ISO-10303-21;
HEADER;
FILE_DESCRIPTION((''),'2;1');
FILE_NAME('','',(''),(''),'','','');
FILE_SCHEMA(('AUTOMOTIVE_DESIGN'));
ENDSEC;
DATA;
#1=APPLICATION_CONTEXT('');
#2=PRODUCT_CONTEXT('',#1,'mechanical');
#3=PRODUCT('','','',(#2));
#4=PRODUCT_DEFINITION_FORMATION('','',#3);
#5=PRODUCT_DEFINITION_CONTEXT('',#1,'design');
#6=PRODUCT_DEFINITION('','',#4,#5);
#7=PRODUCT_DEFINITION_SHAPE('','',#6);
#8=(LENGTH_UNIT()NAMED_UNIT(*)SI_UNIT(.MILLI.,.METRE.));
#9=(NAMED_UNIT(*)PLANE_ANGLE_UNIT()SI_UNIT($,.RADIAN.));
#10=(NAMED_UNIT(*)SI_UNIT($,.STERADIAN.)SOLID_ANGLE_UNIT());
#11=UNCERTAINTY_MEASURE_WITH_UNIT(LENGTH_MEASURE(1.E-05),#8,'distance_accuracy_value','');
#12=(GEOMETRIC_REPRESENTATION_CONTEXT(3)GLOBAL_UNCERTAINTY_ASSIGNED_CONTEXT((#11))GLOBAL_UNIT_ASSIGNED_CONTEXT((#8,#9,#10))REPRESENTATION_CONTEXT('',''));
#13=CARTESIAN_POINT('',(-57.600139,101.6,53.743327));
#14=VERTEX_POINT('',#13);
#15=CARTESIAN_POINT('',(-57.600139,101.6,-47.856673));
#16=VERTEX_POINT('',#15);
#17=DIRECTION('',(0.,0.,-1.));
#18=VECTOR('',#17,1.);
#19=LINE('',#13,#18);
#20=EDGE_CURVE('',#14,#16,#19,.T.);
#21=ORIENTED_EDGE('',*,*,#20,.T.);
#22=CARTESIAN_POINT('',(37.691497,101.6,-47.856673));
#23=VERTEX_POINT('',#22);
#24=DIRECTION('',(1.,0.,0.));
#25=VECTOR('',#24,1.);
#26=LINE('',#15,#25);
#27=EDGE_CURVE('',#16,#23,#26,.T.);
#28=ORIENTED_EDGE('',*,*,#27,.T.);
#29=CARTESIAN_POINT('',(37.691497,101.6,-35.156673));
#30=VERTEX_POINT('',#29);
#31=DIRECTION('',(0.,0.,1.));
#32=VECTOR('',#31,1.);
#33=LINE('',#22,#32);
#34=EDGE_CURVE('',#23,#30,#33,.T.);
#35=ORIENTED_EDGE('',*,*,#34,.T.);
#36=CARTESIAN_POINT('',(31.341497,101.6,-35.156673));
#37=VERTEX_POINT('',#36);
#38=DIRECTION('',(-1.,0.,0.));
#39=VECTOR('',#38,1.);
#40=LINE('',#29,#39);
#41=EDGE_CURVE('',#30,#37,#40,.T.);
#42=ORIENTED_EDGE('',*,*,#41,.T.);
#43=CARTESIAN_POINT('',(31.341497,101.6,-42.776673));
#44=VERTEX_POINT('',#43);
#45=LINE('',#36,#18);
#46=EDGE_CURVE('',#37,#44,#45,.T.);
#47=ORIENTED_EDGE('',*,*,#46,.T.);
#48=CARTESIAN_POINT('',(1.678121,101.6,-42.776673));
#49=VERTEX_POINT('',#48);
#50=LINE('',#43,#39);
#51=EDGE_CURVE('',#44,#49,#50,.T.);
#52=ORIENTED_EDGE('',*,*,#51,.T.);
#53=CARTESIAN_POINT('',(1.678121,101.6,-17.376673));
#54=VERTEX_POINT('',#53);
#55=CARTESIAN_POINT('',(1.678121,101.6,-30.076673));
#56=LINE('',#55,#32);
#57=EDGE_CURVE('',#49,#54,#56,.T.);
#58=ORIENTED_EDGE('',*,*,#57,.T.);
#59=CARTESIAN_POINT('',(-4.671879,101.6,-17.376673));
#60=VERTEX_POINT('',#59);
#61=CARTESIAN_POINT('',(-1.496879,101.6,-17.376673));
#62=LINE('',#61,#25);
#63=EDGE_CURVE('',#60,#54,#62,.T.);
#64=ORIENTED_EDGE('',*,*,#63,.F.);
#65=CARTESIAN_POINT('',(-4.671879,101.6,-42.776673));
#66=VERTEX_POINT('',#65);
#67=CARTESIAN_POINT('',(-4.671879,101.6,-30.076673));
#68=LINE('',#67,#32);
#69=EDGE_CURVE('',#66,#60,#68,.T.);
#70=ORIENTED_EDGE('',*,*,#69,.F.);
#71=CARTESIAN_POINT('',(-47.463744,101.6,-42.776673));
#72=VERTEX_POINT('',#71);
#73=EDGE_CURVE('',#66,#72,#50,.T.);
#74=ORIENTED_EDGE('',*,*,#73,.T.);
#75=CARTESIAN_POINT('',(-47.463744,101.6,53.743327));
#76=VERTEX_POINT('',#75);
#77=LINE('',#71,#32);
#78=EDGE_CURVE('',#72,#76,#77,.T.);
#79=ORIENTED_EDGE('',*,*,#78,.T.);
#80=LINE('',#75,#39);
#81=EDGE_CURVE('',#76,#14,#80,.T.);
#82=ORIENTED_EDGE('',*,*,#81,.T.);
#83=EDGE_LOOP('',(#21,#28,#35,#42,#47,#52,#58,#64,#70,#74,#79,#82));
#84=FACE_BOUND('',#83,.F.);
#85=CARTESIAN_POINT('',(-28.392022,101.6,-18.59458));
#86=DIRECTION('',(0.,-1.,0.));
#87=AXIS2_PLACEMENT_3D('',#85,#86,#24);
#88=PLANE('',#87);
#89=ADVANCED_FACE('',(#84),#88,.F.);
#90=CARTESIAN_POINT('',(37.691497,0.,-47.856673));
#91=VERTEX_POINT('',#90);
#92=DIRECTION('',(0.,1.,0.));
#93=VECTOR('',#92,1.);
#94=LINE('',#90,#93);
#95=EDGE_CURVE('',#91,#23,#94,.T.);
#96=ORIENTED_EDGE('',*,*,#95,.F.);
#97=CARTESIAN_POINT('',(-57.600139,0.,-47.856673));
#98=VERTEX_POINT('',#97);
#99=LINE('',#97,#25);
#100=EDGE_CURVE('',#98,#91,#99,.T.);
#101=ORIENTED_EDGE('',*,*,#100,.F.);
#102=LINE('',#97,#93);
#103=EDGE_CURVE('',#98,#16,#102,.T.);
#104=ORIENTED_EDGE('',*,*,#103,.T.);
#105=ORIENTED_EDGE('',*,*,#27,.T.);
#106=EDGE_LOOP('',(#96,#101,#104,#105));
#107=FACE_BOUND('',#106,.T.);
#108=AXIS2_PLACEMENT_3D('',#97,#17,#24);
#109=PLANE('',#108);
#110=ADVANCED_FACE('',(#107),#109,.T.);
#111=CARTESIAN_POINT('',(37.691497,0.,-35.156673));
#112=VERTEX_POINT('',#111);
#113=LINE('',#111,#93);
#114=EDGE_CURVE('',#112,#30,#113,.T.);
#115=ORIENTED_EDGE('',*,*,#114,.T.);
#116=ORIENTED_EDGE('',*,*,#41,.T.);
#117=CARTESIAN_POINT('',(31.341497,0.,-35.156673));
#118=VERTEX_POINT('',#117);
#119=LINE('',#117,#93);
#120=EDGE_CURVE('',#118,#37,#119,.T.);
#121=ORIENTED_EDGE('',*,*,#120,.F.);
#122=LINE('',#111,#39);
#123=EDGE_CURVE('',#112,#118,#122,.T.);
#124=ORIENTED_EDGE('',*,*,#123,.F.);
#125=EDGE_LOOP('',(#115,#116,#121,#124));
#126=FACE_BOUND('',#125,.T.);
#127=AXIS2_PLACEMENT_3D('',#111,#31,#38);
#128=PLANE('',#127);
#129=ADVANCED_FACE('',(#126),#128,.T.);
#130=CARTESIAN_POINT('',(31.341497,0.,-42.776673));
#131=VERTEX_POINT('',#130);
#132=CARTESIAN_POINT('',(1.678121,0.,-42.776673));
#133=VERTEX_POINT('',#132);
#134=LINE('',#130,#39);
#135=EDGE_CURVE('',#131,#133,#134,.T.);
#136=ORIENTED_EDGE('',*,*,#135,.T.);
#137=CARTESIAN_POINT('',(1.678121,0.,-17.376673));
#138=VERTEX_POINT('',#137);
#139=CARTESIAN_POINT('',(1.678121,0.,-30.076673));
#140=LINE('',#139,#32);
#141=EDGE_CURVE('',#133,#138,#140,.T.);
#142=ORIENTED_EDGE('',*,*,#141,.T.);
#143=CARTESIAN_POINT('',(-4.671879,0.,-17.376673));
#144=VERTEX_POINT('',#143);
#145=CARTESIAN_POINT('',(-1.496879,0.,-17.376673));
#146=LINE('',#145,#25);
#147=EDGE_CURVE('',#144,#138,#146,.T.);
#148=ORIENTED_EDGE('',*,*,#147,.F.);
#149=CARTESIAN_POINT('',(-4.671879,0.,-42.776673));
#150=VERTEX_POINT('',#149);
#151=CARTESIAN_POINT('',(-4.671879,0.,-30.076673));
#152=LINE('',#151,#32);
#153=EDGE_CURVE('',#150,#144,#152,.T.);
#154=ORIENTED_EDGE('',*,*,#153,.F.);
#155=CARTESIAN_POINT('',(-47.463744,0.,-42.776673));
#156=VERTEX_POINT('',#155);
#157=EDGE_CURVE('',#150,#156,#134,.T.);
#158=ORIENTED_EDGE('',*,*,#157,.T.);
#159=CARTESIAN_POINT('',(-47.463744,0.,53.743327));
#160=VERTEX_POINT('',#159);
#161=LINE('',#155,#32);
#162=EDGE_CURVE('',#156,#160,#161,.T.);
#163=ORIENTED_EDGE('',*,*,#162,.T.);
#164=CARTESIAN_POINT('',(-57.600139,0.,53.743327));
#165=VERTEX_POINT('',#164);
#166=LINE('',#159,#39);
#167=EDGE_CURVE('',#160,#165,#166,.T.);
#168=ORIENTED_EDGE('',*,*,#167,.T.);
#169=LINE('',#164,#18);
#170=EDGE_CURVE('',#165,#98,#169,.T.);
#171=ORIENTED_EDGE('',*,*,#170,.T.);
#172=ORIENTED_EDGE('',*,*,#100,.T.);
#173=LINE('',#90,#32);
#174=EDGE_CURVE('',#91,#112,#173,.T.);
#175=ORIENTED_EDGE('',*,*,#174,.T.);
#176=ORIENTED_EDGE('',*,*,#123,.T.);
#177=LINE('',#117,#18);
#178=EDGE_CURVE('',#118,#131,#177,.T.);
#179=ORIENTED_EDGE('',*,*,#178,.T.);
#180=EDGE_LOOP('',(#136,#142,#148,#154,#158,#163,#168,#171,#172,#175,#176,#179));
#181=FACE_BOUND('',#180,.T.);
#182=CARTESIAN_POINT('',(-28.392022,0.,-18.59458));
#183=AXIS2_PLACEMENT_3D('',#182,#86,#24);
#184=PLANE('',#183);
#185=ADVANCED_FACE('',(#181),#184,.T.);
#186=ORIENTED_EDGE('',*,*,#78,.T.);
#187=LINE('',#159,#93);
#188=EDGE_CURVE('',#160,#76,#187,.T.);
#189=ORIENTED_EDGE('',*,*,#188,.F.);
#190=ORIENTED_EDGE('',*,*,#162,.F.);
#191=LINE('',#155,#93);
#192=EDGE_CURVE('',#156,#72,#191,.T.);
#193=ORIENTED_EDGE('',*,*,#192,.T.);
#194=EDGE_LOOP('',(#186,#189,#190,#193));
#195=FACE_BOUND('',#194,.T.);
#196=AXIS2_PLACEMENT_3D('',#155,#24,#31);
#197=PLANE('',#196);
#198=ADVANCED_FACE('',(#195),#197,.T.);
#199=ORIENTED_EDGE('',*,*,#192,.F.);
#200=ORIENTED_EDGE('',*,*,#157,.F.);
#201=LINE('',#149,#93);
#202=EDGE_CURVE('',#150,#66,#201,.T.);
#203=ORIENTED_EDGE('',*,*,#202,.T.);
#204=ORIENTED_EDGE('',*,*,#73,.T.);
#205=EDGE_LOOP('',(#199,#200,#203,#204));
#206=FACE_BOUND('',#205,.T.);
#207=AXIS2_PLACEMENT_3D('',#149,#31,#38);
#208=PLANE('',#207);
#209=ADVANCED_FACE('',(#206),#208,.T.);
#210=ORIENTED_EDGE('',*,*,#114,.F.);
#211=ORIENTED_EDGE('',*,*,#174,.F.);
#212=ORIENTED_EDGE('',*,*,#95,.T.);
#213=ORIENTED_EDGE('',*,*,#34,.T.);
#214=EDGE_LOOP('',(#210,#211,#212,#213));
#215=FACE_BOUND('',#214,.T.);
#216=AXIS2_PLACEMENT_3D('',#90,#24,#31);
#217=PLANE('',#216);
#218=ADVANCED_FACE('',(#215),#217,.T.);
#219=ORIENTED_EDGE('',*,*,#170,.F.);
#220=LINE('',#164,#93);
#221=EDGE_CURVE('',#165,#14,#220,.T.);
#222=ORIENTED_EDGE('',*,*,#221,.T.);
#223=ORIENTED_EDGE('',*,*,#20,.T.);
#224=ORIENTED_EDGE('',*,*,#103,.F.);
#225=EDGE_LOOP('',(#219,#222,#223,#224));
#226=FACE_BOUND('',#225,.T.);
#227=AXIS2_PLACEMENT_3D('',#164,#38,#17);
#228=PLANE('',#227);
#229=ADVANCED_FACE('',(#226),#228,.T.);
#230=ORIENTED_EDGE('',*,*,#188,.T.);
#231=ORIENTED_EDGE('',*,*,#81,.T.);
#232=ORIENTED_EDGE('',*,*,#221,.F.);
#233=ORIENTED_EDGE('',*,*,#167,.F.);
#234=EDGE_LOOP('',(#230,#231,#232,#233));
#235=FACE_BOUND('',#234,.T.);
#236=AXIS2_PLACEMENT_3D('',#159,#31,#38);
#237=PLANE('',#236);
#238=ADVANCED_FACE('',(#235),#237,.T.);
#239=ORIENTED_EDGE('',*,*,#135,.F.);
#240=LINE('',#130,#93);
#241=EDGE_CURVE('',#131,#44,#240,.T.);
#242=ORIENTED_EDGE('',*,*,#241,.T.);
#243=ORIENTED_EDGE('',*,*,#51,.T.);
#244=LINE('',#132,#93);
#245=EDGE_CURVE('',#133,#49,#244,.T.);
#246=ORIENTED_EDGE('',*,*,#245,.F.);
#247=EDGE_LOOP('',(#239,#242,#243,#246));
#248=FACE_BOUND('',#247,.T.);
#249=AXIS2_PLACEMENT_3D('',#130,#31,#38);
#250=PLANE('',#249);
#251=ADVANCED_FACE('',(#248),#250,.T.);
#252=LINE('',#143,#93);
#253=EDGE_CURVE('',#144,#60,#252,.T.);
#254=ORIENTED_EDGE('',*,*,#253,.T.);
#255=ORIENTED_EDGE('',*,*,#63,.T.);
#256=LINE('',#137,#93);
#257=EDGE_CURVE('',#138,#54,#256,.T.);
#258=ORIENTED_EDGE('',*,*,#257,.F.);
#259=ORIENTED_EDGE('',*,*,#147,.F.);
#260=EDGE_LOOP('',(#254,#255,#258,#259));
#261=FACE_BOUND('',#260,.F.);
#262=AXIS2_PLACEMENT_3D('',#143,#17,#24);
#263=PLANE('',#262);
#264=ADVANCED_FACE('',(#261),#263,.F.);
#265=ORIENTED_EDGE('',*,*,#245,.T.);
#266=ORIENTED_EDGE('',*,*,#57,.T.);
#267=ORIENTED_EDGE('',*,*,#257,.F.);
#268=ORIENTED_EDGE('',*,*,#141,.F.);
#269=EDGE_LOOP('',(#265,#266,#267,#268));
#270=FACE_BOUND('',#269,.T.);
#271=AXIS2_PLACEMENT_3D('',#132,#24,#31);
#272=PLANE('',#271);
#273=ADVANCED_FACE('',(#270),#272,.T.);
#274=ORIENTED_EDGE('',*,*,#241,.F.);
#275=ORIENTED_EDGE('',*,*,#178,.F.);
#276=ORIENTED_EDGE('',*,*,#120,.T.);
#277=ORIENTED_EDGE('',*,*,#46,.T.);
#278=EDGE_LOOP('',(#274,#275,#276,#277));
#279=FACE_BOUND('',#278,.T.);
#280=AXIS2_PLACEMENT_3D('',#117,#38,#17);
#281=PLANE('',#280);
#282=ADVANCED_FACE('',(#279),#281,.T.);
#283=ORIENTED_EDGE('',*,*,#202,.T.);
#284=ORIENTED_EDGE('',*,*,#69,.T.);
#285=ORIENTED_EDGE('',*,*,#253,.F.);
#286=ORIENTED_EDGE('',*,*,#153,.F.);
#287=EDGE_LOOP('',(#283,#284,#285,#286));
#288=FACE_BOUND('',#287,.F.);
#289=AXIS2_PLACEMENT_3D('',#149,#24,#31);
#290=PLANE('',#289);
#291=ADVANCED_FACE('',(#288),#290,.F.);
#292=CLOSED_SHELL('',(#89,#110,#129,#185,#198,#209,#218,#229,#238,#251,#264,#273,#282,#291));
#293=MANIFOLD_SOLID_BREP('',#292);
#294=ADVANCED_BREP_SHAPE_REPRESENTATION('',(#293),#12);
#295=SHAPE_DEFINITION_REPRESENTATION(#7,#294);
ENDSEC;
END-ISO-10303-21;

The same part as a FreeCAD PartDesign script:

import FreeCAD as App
import Part
import Sketcher
Q = App.Units.Quantity


def add_polygon(sketch, points):
    """Adds a closed chain of lines whose ends are joined by coincident constraints."""
    first, n = sketch.GeometryCount, len(points)
    for a, b in zip(points, points[1:] + points[:1]):
        sketch.addGeometry(Part.LineSegment(App.Vector(*a, 0), App.Vector(*b, 0)), False)
    for i in range(n):
        sketch.addConstraint(Sketcher.Constraint("Coincident", first + i, 2, first + (i + 1) % n, 1))

doc = App.newDocument("Part")
params = doc.addObject("Spreadsheet::Sheet", "Params")
for row, (alias, value) in enumerate([
    ("sketch1_height", "4 in"),
    ("sketch1_height2", "1 in"),
    ("sketch1_height3", "0.5 in"),
    ("sketch1_height4", "0.3 in"),
    ("sketch1_width", "0.25 in"),
    ("pad1_length", "4 in"),
], start=1):
    params.set(f"A{row}", alias)
    params.set(f"B{row}", "=" + value)
    params.setAlias(f"B{row}", alias)

body = doc.addObject("PartDesign::Body", "Body")

sketch1 = body.newObject("Sketcher::SketchObject", "Sketch")
sketch1.AttachmentSupport = (doc.getObject("XZ_Plane"), [""])
sketch1.MapMode = "FlatFace"
add_polygon(sketch1, [(-47, 54), (-58, 54), (-58, -48), (38, -48), (38, -35), (31, -35), (31, -43), (2, -43), (2, -17), (-5, -17), (-5, -43), (-47, -43)])
sketch1.addConstraint([
    Sketcher.Constraint("Horizontal", 0),
    Sketcher.Constraint("Vertical", 1),
    Sketcher.Constraint("Horizontal", 2),
    Sketcher.Constraint("Vertical", 3),
    Sketcher.Constraint("Horizontal", 4),
    Sketcher.Constraint("Vertical", 5),
    Sketcher.Constraint("Horizontal", 6),
    Sketcher.Constraint("Vertical", 7),
    Sketcher.Constraint("Horizontal", 8),
    Sketcher.Constraint("Vertical", 9),
    Sketcher.Constraint("Horizontal", 10),
    Sketcher.Constraint("Vertical", 11),
    Sketcher.Constraint("Horizontal", 6, 2, 9, 2),
    Sketcher.Constraint("Equal", 4, 8),
    Sketcher.Constraint("DistanceY", 1, 2, 1, 1, Q("4 in")),
    Sketcher.Constraint("DistanceY", 7, 1, 7, 2, Q("1 in")),
    Sketcher.Constraint("DistanceY", 3, 1, 3, 2, Q("0.5 in")),
    Sketcher.Constraint("DistanceY", 5, 2, 5, 1, Q("0.3 in")),
    Sketcher.Constraint("DistanceX", 4, 2, 4, 1, Q("0.25 in")),
    Sketcher.Constraint("DistanceX", 0, 2, 0, 1, 10.136395),
    Sketcher.Constraint("DistanceX", 2, 1, 2, 2, 95.291636),
    Sketcher.Constraint("DistanceX", 6, 2, 6, 1, 29.663376),
    Sketcher.Constraint("DistanceX", 0, 2, -1, 1, 57.600139),
    Sketcher.Constraint("DistanceY", -1, 1, 0, 2, 53.743327),
])
sketch1.setExpression("Constraints[26]", "Params.sketch1_height")
sketch1.setExpression("Constraints[27]", "Params.sketch1_height2")
sketch1.setExpression("Constraints[28]", "Params.sketch1_height3")
sketch1.setExpression("Constraints[29]", "Params.sketch1_height4")
sketch1.setExpression("Constraints[30]", "Params.sketch1_width")
pad1 = body.newObject("PartDesign::Pad", "Pad")
pad1.Profile = sketch1
pad1.setExpression("Length", "Params.pad1_length")
pad1.Reversed = True

doc.recompute()
